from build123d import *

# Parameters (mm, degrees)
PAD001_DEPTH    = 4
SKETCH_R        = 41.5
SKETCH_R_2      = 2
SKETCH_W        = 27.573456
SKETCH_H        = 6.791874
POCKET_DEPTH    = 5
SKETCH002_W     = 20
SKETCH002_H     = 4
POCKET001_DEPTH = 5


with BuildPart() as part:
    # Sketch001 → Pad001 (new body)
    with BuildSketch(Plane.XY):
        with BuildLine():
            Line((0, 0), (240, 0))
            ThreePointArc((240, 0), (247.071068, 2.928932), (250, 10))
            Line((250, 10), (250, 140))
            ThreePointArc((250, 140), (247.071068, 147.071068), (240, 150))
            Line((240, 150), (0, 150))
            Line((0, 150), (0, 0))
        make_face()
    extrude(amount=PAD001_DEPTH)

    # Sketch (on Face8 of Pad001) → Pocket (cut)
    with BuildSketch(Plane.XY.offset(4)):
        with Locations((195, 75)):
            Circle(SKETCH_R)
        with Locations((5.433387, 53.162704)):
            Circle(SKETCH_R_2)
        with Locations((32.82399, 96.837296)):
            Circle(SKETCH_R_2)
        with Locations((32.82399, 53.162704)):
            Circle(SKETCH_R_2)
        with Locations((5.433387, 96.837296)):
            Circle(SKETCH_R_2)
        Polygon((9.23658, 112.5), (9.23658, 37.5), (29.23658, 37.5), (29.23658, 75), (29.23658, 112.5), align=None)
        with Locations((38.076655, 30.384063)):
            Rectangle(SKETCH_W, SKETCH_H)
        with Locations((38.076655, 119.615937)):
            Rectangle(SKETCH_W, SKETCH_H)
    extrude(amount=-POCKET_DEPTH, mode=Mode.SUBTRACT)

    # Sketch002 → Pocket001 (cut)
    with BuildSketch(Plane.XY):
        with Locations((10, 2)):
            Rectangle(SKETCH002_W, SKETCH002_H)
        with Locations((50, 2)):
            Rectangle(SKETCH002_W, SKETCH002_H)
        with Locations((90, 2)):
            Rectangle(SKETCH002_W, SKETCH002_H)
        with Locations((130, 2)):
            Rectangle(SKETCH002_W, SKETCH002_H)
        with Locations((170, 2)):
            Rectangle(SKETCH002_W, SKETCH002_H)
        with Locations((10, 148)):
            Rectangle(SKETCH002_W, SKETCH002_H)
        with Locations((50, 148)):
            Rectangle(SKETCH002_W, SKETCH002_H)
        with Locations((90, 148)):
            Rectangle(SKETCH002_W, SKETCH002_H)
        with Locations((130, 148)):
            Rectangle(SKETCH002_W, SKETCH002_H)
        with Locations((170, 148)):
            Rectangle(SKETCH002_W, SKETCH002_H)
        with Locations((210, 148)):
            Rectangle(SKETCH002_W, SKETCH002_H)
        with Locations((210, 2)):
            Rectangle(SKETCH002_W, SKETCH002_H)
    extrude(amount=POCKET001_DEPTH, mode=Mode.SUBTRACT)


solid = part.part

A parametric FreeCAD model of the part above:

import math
import FreeCAD as App
import Part
import Sketcher
from FreeCAD import Vector
Q = App.Units.Quantity


def add_polygon(sketch, points):
    """Adds a closed chain of lines whose ends are joined by coincident constraints."""
    first, n = sketch.GeometryCount, len(points)
    for a, b in zip(points, points[1:] + points[:1]):
        sketch.addGeometry(Part.LineSegment(App.Vector(*a, 0), App.Vector(*b, 0)), False)
    for i in range(n):
        sketch.addConstraint(Sketcher.Constraint("Coincident", first + i, 2, first + (i + 1) % n, 1))

doc = App.newDocument("Part")
body = doc.addObject("PartDesign::Body", "Body")

# Sketch on XY plane
sketch1 = doc.addObject("Sketcher::SketchObject", "Sketch")
body.addObject(sketch1)
sketch1.AttachmentSupport = (doc.XY_Plane, [""])
sketch1.MapMode = "FlatFace"
sketch1.addGeometry([
    Part.LineSegment(Vector(0, 0, 0), Vector(240, 0, 0)),  # 0
    Part.ArcOfCircle(Part.Circle(Vector(240, 10, 0), Vector(0, 0, 1), 10), math.radians(-90), math.radians(0)),  # 1
    Part.LineSegment(Vector(250, 10, 0), Vector(250, 140, 0)),  # 2
    Part.ArcOfCircle(Part.Circle(Vector(240, 140, 0), Vector(0, 0, 1), 10), math.radians(0), math.radians(90)),  # 3
    Part.LineSegment(Vector(240, 150, 0), Vector(0, 150, 0)),  # 4
    Part.LineSegment(Vector(0, 150, 0), Vector(0, 0, 0)),  # 5
], False)
sketch1.addConstraint([
    Sketcher.Constraint("Tangent", 0, 2, 1, 1),
    Sketcher.Constraint("Tangent", 1, 2, 2, 1),
    Sketcher.Constraint("Tangent", 2, 2, 3, 1),
    Sketcher.Constraint("Tangent", 3, 2, 4, 1),
    Sketcher.Constraint("Coincident", 4, 2, 5, 1),
    Sketcher.Constraint("Coincident", 5, 2, 0, 1),
    Sketcher.Constraint("Horizontal", 0),
    Sketcher.Constraint("Vertical", 2),
    Sketcher.Constraint("Horizontal", 4),
    Sketcher.Constraint("Vertical", 5),
    Sketcher.Constraint("Coincident", 5, 2, -1, 1),
    Sketcher.Constraint("Equal", 1, 3),
    Sketcher.Constraint("Radius", 1, Q("9.999999 mm")),
    Sketcher.Constraint("DistanceX", 0, 1, 0, 2, Q("240 mm")),
    Sketcher.Constraint("DistanceY", 2, 1, 2, 2, Q("130 mm")),
])
pad1 = doc.addObject("PartDesign::Pad", "Pad")
body.addObject(pad1)
pad1.Profile = sketch1
pad1.Length = 4

# Sketch on XY plane
sketch2 = doc.addObject("Sketcher::SketchObject", "Sketch001")
body.addObject(sketch2)
sketch2.AttachmentSupport = (doc.XY_Plane, [""])
sketch2.MapMode = "FlatFace"
sketch2.AttachmentOffset = App.Placement(Vector(0, 0, 4), App.Rotation())
sketch2.addGeometry(Part.Circle(Vector(195, 75, 0), Vector(0, 0, 1), 41.5), False)  # 0
sketch2.addGeometry(Part.Circle(Vector(5.4, 53.2, 0), Vector(0, 0, 1), 2), False)  # 1
sketch2.addGeometry(Part.Circle(Vector(32.8, 96.8, 0), Vector(0, 0, 1), 2), False)  # 2
sketch2.addGeometry(Part.Circle(Vector(32.8, 53.2, 0), Vector(0, 0, 1), 2), False)  # 3
sketch2.addGeometry(Part.Circle(Vector(5.4, 96.8, 0), Vector(0, 0, 1), 2), False)  # 4
add_polygon(sketch2, [(9.2, 112.5), (9.2, 37.5), (29.2, 37.5), (29.2, 112.5)])  # lines 5-8
add_polygon(sketch2, [(24.3, 33.8), (24.3, 27), (51.9, 27), (51.9, 33.8)])  # lines 9-12
add_polygon(sketch2, [(24.3, 123), (24.3, 116.2), (51.9, 116.2), (51.9, 123)])  # lines 13-16
sketch2.addConstraint([
    Sketcher.Constraint("Vertical", 5),
    Sketcher.Constraint("Horizontal", 6),
    Sketcher.Constraint("Vertical", 7),
    Sketcher.Constraint("Horizontal", 8),
    Sketcher.Constraint("Vertical", 9),
    Sketcher.Constraint("Horizontal", 10),
    Sketcher.Constraint("Vertical", 11),
    Sketcher.Constraint("Horizontal", 12),
    Sketcher.Constraint("Vertical", 13),
    Sketcher.Constraint("Horizontal", 14),
    Sketcher.Constraint("Vertical", 15),
    Sketcher.Constraint("Horizontal", 16),
    Sketcher.Constraint("Equal", 1, 2),
    Sketcher.Constraint("Equal", 2, 3),
    Sketcher.Constraint("Equal", 3, 4),
    Sketcher.Constraint("Horizontal", 1, 3, 3, 3),
    Sketcher.Constraint("Horizontal", 2, 3, 4, 3),
    Sketcher.Constraint("Vertical", 2, 3, 3, 3),
    Sketcher.Constraint("Vertical", 1, 3, 4, 3),
    Sketcher.Constraint("Vertical", 12, 2, 13, 2),
    Sketcher.Constraint("Vertical", 11, 2, 14, 2),
    Sketcher.Constraint("Equal", 11, 13),
    Sketcher.Constraint("Diameter", 0, Q("83 mm")),
    Sketcher.Constraint("Diameter", 1, Q("4 mm")),
    Sketcher.Constraint("DistanceX", 6, 1, 6, 2, Q("20 mm")),
    Sketcher.Constraint("DistanceY", 5, 2, 5, 1, Q("75 mm")),
    Sketcher.Constraint("DistanceX", -1, 1, 0, 3, Q("195 mm")),
    Sketcher.Constraint("DistanceY", -1, 1, 0, 3, Q("75 mm")),
    Sketcher.Constraint("DistanceY", -1, 1, 5, 2, Q("37.5 mm")),
    Sketcher.Constraint("DistanceY", -1, 1, 11, 2, Q("33.78 mm")),
    Sketcher.Constraint("DistanceY", -1, 1, 13, 2, Q("116.22 mm")),
    Sketcher.Constraint("DistanceX", 10, 1, 10, 2, Q("27.573456 mm")),
    Sketcher.Constraint("DistanceY", 9, 2, 9, 1, Q("6.791874 mm")),
    Sketcher.Constraint("DistanceX", -1, 1, 2, 3, Q("32.82399 mm")),
    Sketcher.Constraint("DistanceX", -1, 1, 5, 2, Q("9.23658 mm")),
    Sketcher.Constraint("DistanceY", 1, 3, 2, 3, Q("43.674592 mm")),
    Sketcher.Constraint("DistanceX", 1, 3, 9, 2, Q("18.85654 mm")),
    Sketcher.Constraint("DistanceY", 9, 2, 2, 3, Q("69.84917 mm")),
    Sketcher.Constraint("DistanceX", -1, 1, 1, 3, Q("5.433387 mm")),
])
pocket1 = doc.addObject("PartDesign::Pocket", "Pocket")
body.addObject(pocket1)
pocket1.Profile = sketch2
pocket1.Length = 5

# Sketch on XY plane
sketch3 = doc.addObject("Sketcher::SketchObject", "Sketch002")
body.addObject(sketch3)
sketch3.AttachmentSupport = (doc.XY_Plane, [""])
sketch3.MapMode = "FlatFace"
add_polygon(sketch3, [(0, 4), (0, 0), (20, 0), (20, 4)])  # lines 0-3
add_polygon(sketch3, [(40, 4), (40, 0), (60, 0), (60, 4)])  # lines 4-7
add_polygon(sketch3, [(80, 4), (80, 0), (100, 0), (100, 4)])  # lines 8-11
add_polygon(sketch3, [(120, 4), (120, 0), (140, 0), (140, 4)])  # lines 12-15
add_polygon(sketch3, [(160, 4), (160, 0), (180, 0), (180, 4)])  # lines 16-19
add_polygon(sketch3, [(0, 150), (0, 146), (20, 146), (20, 150)])  # lines 20-23
add_polygon(sketch3, [(40, 150), (40, 146), (60, 146), (60, 150)])  # lines 24-27
add_polygon(sketch3, [(80, 150), (80, 146), (100, 146), (100, 150)])  # lines 28-31
add_polygon(sketch3, [(120, 150), (120, 146), (140, 146), (140, 150)])  # lines 32-35
add_polygon(sketch3, [(160, 150), (160, 146), (180, 146), (180, 150)])  # lines 36-39
add_polygon(sketch3, [(200, 150), (200, 146), (220, 146), (220, 150)])  # lines 40-43
add_polygon(sketch3, [(200, 4), (200, 0), (220, 0), (220, 4)])  # lines 44-47
sketch3.addConstraint([
    Sketcher.Constraint("Vertical", 0),
    Sketcher.Constraint("Horizontal", 1),
    Sketcher.Constraint("Vertical", 2),
    Sketcher.Constraint("Horizontal", 3),
    Sketcher.Constraint("Vertical", 4),
    Sketcher.Constraint("Horizontal", 5),
    Sketcher.Constraint("Vertical", 6),
    Sketcher.Constraint("Horizontal", 7),
    Sketcher.Constraint("Vertical", 8),
    Sketcher.Constraint("Horizontal", 9),
    Sketcher.Constraint("Vertical", 10),
    Sketcher.Constraint("Horizontal", 11),
    Sketcher.Constraint("Vertical", 12),
    Sketcher.Constraint("Horizontal", 13),
    Sketcher.Constraint("Vertical", 14),
    Sketcher.Constraint("Horizontal", 15),
    Sketcher.Constraint("Vertical", 16),
    Sketcher.Constraint("Horizontal", 17),
    Sketcher.Constraint("Vertical", 18),
    Sketcher.Constraint("Horizontal", 19),
    Sketcher.Constraint("Vertical", 20),
    Sketcher.Constraint("Horizontal", 21),
    Sketcher.Constraint("Vertical", 22),
    Sketcher.Constraint("Horizontal", 23),
    Sketcher.Constraint("Vertical", 24),
    Sketcher.Constraint("Horizontal", 25),
    Sketcher.Constraint("Vertical", 26),
    Sketcher.Constraint("Horizontal", 27),
    Sketcher.Constraint("Vertical", 28),
    Sketcher.Constraint("Horizontal", 29),
    Sketcher.Constraint("Vertical", 30),
    Sketcher.Constraint("Horizontal", 31),
    Sketcher.Constraint("Vertical", 32),
    Sketcher.Constraint("Horizontal", 33),
    Sketcher.Constraint("Vertical", 34),
    Sketcher.Constraint("Horizontal", 35),
    Sketcher.Constraint("Vertical", 36),
    Sketcher.Constraint("Horizontal", 37),
    Sketcher.Constraint("Vertical", 38),
    Sketcher.Constraint("Horizontal", 39),
    Sketcher.Constraint("Vertical", 40),
    Sketcher.Constraint("Horizontal", 41),
    Sketcher.Constraint("Vertical", 42),
    Sketcher.Constraint("Horizontal", 43),
    Sketcher.Constraint("Vertical", 44),
    Sketcher.Constraint("Horizontal", 45),
    Sketcher.Constraint("Vertical", 46),
    Sketcher.Constraint("Horizontal", 47),
    Sketcher.Constraint("Coincident", 0, 2, -1, 1),
    Sketcher.Constraint("PointOnObject", 4, 2, -1),
    Sketcher.Constraint("PointOnObject", 8, 2, -1),
    Sketcher.Constraint("PointOnObject", 12, 2, -1),
    Sketcher.Constraint("PointOnObject", 16, 2, -1),
    Sketcher.Constraint("PointOnObject", 20, 2, -2),
    Sketcher.Constraint("PointOnObject", 44, 2, -1),
    Sketcher.Constraint("Horizontal", 3, 2, 6, 2),
    Sketcher.Constraint("Horizontal", 7, 2, 10, 2),
    Sketcher.Constraint("Horizontal", 11, 2, 14, 2),
    Sketcher.Constraint("Horizontal", 15, 2, 18, 2),
    Sketcher.Constraint("Horizontal", 21, 2, 24, 2),
    Sketcher.Constraint("Horizontal", 23, 2, 26, 2),
    Sketcher.Constraint("Horizontal", 25, 2, 28, 2),
    Sketcher.Constraint("Horizontal", 27, 2, 30, 2),
    Sketcher.Constraint("Horizontal", 29, 2, 32, 2),
    Sketcher.Constraint("Horizontal", 31, 2, 34, 2),
    Sketcher.Constraint("Horizontal", 33, 2, 36, 2),
    Sketcher.Constraint("Horizontal", 35, 2, 38, 2),
    Sketcher.Constraint("Horizontal", 37, 2, 40, 2),
    Sketcher.Constraint("Horizontal", 39, 2, 42, 2),
    Sketcher.Constraint("Horizontal", 19, 2, 46, 2),
    Sketcher.Constraint("Vertical", 2, 2, 21, 2),
    Sketcher.Constraint("Vertical", 7, 2, 24, 2),
    Sketcher.Constraint("Vertical", 6, 2, 25, 2),
    Sketcher.Constraint("Vertical", 11, 2, 28, 2),
    Sketcher.Constraint("Vertical", 10, 2, 29, 2),
    Sketcher.Constraint("Vertical", 15, 2, 32, 2),
    Sketcher.Constraint("Vertical", 14, 2, 33, 2),
    Sketcher.Constraint("Vertical", 19, 2, 36, 2),
    Sketcher.Constraint("Vertical", 18, 2, 37, 2),
    Sketcher.Constraint("Vertical", 43, 2, 44, 2),
    Sketcher.Constraint("Vertical", 42, 2, 45, 2),
    Sketcher.Constraint("Equal", 3, 5),
    Sketcher.Constraint("Equal", 7, 9),
    Sketcher.Constraint("Equal", 11, 13),
    Sketcher.Constraint("Equal", 15, 17),
    Sketcher.Constraint("Equal", 39, 41),
    Sketcher.Constraint("Equal", 18, 20),
    Sketcher.Constraint("DistanceX", 1, 1, 1, 2, Q("20 mm")),
    Sketcher.Constraint("DistanceY", 0, 2, 0, 1, Q("4 mm")),
    Sketcher.Constraint("DistanceX", -1, 1, 4, 2, Q("40 mm")),
    Sketcher.Constraint("DistanceX", -1, 1, 8, 2, Q("80 mm")),
    Sketcher.Constraint("DistanceX", -1, 1, 12, 2, Q("120 mm")),
    Sketcher.Constraint("DistanceX", -1, 1, 16, 2, Q("160 mm")),
    Sketcher.Constraint("DistanceY", -1, 1, 20, 2, Q("146 mm")),
    Sketcher.Constraint("DistanceX", -1, 1, 40, 2, Q("200 mm")),
])
pocket2 = doc.addObject("PartDesign::Pocket", "Pocket001")
body.addObject(pocket2)
pocket2.Profile = sketch3
pocket2.Length = 5
pocket2.Reversed = True

doc.recompute()
